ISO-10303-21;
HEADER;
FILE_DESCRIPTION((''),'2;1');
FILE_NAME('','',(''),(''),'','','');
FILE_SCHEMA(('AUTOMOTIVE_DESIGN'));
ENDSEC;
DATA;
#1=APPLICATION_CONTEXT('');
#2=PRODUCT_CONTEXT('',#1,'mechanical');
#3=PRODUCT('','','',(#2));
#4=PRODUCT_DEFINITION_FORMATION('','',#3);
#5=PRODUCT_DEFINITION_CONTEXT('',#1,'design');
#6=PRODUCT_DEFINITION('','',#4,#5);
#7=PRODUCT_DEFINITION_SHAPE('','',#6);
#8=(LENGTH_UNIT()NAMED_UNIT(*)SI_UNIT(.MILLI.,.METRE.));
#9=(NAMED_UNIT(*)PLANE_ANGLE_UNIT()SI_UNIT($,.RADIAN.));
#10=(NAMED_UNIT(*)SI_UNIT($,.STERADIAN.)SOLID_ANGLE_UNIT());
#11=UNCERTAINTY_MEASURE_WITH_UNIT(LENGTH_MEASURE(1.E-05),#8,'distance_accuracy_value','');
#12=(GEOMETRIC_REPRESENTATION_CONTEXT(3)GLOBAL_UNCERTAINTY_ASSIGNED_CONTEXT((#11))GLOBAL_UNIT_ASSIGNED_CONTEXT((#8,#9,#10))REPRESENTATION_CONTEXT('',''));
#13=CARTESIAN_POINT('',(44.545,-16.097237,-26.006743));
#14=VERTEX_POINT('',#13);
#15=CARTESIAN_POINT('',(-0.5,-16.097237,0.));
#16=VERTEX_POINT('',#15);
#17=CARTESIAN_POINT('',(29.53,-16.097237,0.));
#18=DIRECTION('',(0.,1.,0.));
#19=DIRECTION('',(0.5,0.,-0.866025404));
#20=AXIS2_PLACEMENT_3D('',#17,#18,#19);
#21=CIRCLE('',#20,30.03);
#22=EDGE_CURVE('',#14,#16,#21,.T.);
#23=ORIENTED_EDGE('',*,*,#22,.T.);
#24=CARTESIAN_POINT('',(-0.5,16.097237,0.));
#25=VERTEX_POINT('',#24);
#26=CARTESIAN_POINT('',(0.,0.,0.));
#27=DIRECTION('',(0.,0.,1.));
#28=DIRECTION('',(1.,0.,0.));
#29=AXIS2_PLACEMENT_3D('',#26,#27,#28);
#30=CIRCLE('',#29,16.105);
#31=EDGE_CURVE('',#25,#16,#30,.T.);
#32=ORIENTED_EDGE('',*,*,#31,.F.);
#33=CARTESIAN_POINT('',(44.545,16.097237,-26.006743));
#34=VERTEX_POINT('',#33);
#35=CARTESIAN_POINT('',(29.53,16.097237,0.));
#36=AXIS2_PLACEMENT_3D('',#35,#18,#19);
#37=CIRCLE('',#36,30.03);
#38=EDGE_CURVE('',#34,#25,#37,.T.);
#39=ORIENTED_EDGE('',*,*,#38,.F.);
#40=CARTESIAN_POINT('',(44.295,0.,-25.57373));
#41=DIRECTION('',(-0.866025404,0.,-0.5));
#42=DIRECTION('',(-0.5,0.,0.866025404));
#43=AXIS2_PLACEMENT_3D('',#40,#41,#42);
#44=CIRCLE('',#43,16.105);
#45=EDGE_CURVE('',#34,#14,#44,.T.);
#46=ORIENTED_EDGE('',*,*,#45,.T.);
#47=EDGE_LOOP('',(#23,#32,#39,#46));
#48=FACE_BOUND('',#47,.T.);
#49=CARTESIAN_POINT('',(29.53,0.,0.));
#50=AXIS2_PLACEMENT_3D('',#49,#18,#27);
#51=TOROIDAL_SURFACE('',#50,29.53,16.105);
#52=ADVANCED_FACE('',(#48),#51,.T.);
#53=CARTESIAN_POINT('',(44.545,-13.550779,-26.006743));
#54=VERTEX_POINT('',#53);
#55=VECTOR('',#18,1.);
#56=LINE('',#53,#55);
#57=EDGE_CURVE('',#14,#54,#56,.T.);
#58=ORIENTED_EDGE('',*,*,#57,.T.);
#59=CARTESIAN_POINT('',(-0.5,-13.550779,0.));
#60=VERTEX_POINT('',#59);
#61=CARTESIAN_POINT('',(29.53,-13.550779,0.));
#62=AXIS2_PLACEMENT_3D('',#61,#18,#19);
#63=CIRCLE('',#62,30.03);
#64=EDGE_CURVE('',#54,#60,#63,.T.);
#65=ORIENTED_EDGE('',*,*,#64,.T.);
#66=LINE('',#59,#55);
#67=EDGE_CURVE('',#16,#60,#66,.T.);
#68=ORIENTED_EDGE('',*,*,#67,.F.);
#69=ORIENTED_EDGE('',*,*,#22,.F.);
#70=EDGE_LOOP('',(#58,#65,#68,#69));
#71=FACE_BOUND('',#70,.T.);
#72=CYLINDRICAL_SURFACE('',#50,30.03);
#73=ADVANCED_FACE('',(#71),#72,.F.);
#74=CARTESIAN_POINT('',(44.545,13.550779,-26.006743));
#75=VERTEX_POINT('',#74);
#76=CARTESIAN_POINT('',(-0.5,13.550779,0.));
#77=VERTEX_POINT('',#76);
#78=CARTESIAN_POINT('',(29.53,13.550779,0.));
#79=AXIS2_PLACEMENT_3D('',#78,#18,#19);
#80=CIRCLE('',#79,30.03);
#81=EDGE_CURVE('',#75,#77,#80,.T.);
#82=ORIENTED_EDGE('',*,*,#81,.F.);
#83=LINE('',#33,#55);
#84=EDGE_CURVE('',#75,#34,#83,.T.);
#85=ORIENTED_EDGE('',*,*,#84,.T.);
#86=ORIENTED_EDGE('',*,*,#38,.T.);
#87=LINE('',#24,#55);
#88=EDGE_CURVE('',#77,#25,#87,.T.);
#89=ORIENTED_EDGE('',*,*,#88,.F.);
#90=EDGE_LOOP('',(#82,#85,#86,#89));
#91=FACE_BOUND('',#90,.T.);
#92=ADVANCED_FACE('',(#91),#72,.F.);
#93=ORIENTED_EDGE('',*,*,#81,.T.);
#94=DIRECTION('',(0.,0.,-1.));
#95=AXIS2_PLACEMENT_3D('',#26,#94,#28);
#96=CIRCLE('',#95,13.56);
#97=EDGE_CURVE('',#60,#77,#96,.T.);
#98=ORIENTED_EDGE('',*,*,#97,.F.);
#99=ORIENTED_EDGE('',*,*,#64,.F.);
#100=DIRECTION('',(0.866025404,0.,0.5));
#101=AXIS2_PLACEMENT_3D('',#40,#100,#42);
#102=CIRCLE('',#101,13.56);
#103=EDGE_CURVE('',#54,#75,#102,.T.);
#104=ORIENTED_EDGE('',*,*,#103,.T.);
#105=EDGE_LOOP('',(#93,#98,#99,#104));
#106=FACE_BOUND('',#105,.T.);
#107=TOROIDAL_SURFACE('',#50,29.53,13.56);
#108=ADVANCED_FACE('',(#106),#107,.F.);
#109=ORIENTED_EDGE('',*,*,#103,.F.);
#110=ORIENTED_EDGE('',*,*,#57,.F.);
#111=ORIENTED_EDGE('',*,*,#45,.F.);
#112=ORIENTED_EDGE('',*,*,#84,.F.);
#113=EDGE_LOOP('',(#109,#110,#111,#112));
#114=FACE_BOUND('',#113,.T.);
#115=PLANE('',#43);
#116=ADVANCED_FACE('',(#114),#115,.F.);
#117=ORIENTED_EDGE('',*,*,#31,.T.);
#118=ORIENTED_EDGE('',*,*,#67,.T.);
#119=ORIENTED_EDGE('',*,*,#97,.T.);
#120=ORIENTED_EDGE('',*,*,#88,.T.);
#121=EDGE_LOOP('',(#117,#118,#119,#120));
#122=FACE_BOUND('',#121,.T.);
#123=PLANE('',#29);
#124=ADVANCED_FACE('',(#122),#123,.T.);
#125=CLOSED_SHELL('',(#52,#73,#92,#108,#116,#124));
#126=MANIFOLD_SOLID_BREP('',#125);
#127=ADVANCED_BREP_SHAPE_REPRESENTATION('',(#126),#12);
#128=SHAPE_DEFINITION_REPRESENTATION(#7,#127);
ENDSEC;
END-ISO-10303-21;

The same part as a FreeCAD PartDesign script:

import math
import FreeCAD as App
import Part
import Sketcher

doc = App.newDocument("Part")
body = doc.addObject("PartDesign::Body", "Body")

# Sketch on XY plane
sketch1 = body.newObject("Sketcher::SketchObject", "Sketch")
sketch1.AttachmentSupport = (doc.getObject("XY_Plane"), [""])
sketch1.MapMode = "FlatFace"
sketch1.addGeometry(Part.LineSegment(App.Vector(-0.5, 13.6, 0), App.Vector(-0.5, 16.1, 0)), False)
sketch1.addGeometry(Part.ArcOfCircle(Part.Circle(App.Vector(0, 0, 0), App.Vector(0, 0, 1), 16.1), math.radians(92), math.radians(268)), False)
sketch1.addGeometry(Part.LineSegment(App.Vector(-0.5, -16.1, 0), App.Vector(-0.5, -13.6, 0)), False)
sketch1.addGeometry(Part.ArcOfCircle(Part.Circle(App.Vector(0, 0, 0), App.Vector(0, 0, 1), 13.6), math.radians(92), math.radians(268)), False)
sketch1.addConstraint(Sketcher.Constraint("Coincident", 0, 2, 1, 1))
sketch1.addConstraint(Sketcher.Constraint("Coincident", 1, 2, 2, 1))
sketch1.addConstraint(Sketcher.Constraint("Coincident", 2, 2, 3, 2))
sketch1.addConstraint(Sketcher.Constraint("Coincident", 3, 1, 0, 1))
sketch1.addConstraint(Sketcher.Constraint("Vertical", 0))
sketch1.addConstraint(Sketcher.Constraint("Vertical", 2))
sketch1.addConstraint(Sketcher.Constraint("Coincident", 1, 3, -1, 1))
sketch1.addConstraint(Sketcher.Constraint("Coincident", 3, 3, -1, 1))
sketch1.addConstraint(Sketcher.Constraint("Vertical", 0, 2, 1, 2))
sketch1.addConstraint(Sketcher.Constraint("Radius", 3, 13.56))
sketch1.addConstraint(Sketcher.Constraint("Radius", 1, 16.105))
sketch1.addConstraint(Sketcher.Constraint("DistanceX", 0, 2, -1, 1, 0.5))

# Sketch on XZ plane
sketch2 = body.newObject("Sketcher::SketchObject", "Sketch001")
sketch2.AttachmentSupport = (doc.getObject("XZ_Plane"), [""])
sketch2.MapMode = "FlatFace"
sketch2.addGeometry(Part.ArcOfCircle(Part.Circle(App.Vector(30, 0, 0), App.Vector(0, 0, 1), 30), math.radians(180), math.radians(300)), False)
sketch2.addConstraint(Sketcher.Constraint("Coincident", 0, 1, -1, 1))
sketch2.addConstraint(Sketcher.Constraint("PointOnObject", 0, 3, -1))
sketch2.addConstraint(Sketcher.Constraint("Radius", 0, 29.53))
sketch2.addConstraint(Sketcher.Constraint("DistanceX", -1, 1, 0, 2, 44.295))
doc.recompute()

additivepipe = body.newObject("PartDesign::AdditivePipe", "AdditivePipe")
additivepipe.Profile = sketch1
additivepipe.Spine = (sketch2, ["Edge1"])

doc.recompute()
